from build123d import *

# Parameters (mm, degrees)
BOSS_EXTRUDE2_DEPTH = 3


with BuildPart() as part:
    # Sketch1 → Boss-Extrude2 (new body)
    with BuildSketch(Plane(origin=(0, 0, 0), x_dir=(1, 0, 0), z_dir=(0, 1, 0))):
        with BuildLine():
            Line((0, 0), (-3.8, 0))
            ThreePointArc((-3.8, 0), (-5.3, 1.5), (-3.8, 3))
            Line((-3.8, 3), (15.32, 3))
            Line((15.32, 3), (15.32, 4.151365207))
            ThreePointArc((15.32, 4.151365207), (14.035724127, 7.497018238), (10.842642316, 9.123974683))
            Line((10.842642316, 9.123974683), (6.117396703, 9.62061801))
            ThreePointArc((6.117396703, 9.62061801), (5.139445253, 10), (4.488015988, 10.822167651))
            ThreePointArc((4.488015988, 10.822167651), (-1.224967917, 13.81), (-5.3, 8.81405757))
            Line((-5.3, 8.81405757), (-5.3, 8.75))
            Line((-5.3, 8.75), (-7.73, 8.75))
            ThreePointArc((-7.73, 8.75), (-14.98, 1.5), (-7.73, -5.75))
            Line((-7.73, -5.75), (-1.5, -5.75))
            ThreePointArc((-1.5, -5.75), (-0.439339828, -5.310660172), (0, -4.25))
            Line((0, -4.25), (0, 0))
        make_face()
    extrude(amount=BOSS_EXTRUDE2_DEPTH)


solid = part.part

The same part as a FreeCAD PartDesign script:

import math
import FreeCAD as App
import Part
import Sketcher
Q = App.Units.Quantity

doc = App.newDocument("Part")
body = doc.addObject("PartDesign::Body", "Body")

# Sketch on XZ plane
sketch1 = body.newObject("Sketcher::SketchObject", "Sketch")
sketch1.AttachmentSupport = (doc.getObject("XZ_Plane"), [""])
sketch1.MapMode = "FlatFace"
sketch1.addGeometry(Part.LineSegment(App.Vector(0, 0, 0), App.Vector(-3.8, 0, 0)), False)
sketch1.addGeometry(Part.ArcOfCircle(Part.Circle(App.Vector(-3.8, -1.5, 0), App.Vector(0, 0, 1), 1.5), math.radians(90), math.radians(270)), False)
sketch1.addGeometry(Part.LineSegment(App.Vector(-3.8, -3, 0), App.Vector(15.32, -3, 0)), False)
sketch1.addGeometry(Part.LineSegment(App.Vector(15.32, -3, 0), App.Vector(15.32, -4.151365, 0)), False)
sketch1.addGeometry(Part.ArcOfCircle(Part.Circle(App.Vector(10.32, -4.151365, 0), App.Vector(0, 0, 1), 5), math.radians(-84), math.radians(0)), False)
sketch1.addGeometry(Part.LineSegment(App.Vector(10.842642, -9.123975, 0), App.Vector(6.117397, -9.620618, 0)), False)
sketch1.addGeometry(Part.ArcOfCircle(Part.Circle(App.Vector(6.326454, -11.609662, 0), App.Vector(0, 0, 1), 2), math.radians(96), math.radians(156.812145)), False)
sketch1.addGeometry(Part.ArcOfCircle(Part.Circle(App.Vector(-0.2, -8.814058, 0), App.Vector(0, 0, 1), 5.1), math.radians(-180), math.radians(-23.187855)), False)
sketch1.addGeometry(Part.LineSegment(App.Vector(-5.3, -8.814058, 0), App.Vector(-5.3, -8.75, 0)), False)
sketch1.addGeometry(Part.LineSegment(App.Vector(-5.3, -8.75, 0), App.Vector(-7.73, -8.75, 0)), False)
sketch1.addGeometry(Part.ArcOfCircle(Part.Circle(App.Vector(-7.73, -1.5, 0), App.Vector(0, 0, 1), 7.25), math.radians(90), math.radians(270)), False)
sketch1.addGeometry(Part.LineSegment(App.Vector(-7.73, 5.75, 0), App.Vector(-1.5, 5.75, 0)), False)
sketch1.addGeometry(Part.ArcOfCircle(Part.Circle(App.Vector(-1.5, 4.25, 0), App.Vector(0, 0, 1), 1.5), math.radians(0), math.radians(90)), False)
sketch1.addGeometry(Part.LineSegment(App.Vector(0, 4.25, 0), App.Vector(0, 0, 0)), False)
sketch1.addConstraint(Sketcher.Constraint("Tangent", 0, 2, 1, 1))
sketch1.addConstraint(Sketcher.Constraint("Tangent", 1, 2, 2, 1))
sketch1.addConstraint(Sketcher.Constraint("Coincident", 2, 2, 3, 1))
sketch1.addConstraint(Sketcher.Constraint("Tangent", 3, 2, 4, 2))
sketch1.addConstraint(Sketcher.Constraint("Tangent", 4, 1, 5, 1))
sketch1.addConstraint(Sketcher.Constraint("Tangent", 5, 2, 6, 1))
sketch1.addConstraint(Sketcher.Constraint("Tangent", 6, 2, 7, 2))
sketch1.addConstraint(Sketcher.Constraint("Tangent", 7, 1, 8, 1))
sketch1.addConstraint(Sketcher.Constraint("Coincident", 8, 2, 9, 1))
sketch1.addConstraint(Sketcher.Constraint("Tangent", 9, 2, 10, 2))
sketch1.addConstraint(Sketcher.Constraint("Tangent", 10, 1, 11, 1))
sketch1.addConstraint(Sketcher.Constraint("Tangent", 11, 2, 12, 2))
sketch1.addConstraint(Sketcher.Constraint("Tangent", 12, 1, 13, 1))
sketch1.addConstraint(Sketcher.Constraint("Coincident", 13, 2, 0, 1))
sketch1.addConstraint(Sketcher.Constraint("Horizontal", 0))
sketch1.addConstraint(Sketcher.Constraint("Horizontal", 2))
sketch1.addConstraint(Sketcher.Constraint("Vertical", 3))
sketch1.addConstraint(Sketcher.Constraint("Vertical", 8))
sketch1.addConstraint(Sketcher.Constraint("Horizontal", 9))
sketch1.addConstraint(Sketcher.Constraint("Horizontal", 11))
sketch1.addConstraint(Sketcher.Constraint("Vertical", 13))
sketch1.addConstraint(Sketcher.Constraint("Coincident", 13, 2, -1, 1))
sketch1.addConstraint(Sketcher.Constraint("Equal", 1, 12))
sketch1.addConstraint(Sketcher.Constraint("Horizontal", 1, 3, 10, 3))
sketch1.addConstraint(Sketcher.Constraint("Radius", 4, Q("5 mm")))
sketch1.addConstraint(Sketcher.Constraint("Radius", 6, Q("2 mm")))
sketch1.addConstraint(Sketcher.Constraint("Radius", 1, Q("1.5 mm")))
sketch1.addConstraint(Sketcher.Constraint("Radius", 7, Q("5.1 mm")))
sketch1.addConstraint(Sketcher.Constraint("Angle", 5, Q("-174 deg")))
sketch1.addConstraint(Sketcher.Constraint("Radius", 10, Q("7.25 mm")))
sketch1.addConstraint(Sketcher.Constraint("DistanceX", 0, 2, 0, 1, Q("3.8 mm")))
sketch1.addConstraint(Sketcher.Constraint("DistanceX", 2, 1, 2, 2, Q("19.12 mm")))
sketch1.addConstraint(Sketcher.Constraint("DistanceX", 9, 2, 9, 1, Q("2.43 mm")))
sketch1.addConstraint(Sketcher.Constraint("DistanceX", 11, 1, 11, 2, Q("6.23 mm")))
sketch1.addConstraint(Sketcher.Constraint("DistanceY", 3, 2, 3, 1, Q("1.151365 mm")))
sketch1.addConstraint(Sketcher.Constraint("DistanceY", 8, 1, 8, 2, Q("0.064058 mm")))
pad1 = body.newObject("PartDesign::Pad", "Pad")
pad1.Profile = sketch1
pad1.Length = 3
pad1.Reversed = True

doc.recompute()
